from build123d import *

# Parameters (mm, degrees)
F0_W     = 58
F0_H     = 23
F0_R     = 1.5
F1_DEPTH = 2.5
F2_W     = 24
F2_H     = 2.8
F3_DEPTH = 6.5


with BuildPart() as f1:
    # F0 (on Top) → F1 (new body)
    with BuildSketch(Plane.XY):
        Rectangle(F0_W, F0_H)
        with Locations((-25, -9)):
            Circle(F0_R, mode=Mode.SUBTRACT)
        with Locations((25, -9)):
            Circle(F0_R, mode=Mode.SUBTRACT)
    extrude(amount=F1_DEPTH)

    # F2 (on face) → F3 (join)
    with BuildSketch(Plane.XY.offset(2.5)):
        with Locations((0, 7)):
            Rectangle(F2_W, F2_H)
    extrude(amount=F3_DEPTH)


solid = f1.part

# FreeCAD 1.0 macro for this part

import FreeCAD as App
import Part
import Sketcher

V = App.Vector
Q = App.Units.Quantity

doc = App.newDocument("Part")
params = doc.addObject("Spreadsheet::Sheet", "Params")
for row, (alias, value) in enumerate([
    ("sketch1_diameter", "3 mm"),
    ("sketch1_width", "58 mm"),
    ("sketch1_height", "23 mm"),
    ("pad1_length", "2.5 mm"),
    ("sketch2_width", "24 mm"),
    ("sketch2_height", "2.8 mm"),
    ("pad2_length", "6.5 mm"),
], start=1):
    params.set(f"A{row}", alias)
    params.set(f"B{row}", "=" + value)
    params.setAlias(f"B{row}", alias)

body = doc.addObject("PartDesign::Body", "Body")

# Sketch on XY plane
sketch1 = doc.addObject("Sketcher::SketchObject", "Sketch")
body.addObject(sketch1)
sketch1.AttachmentSupport = (doc.XY_Plane, [""])
sketch1.MapMode = "FlatFace"
sketch1.addGeometry([
    Part.LineSegment(V(-29, 11.5, 0), V(-29, -11.5, 0)),  # 0
    Part.LineSegment(V(-29, -11.5, 0), V(29, -11.5, 0)),  # 1
    Part.LineSegment(V(29, -11.5, 0), V(29, 11.5, 0)),  # 2
    Part.LineSegment(V(29, 11.5, 0), V(-29, 11.5, 0)),  # 3
    Part.Circle(V(-25, -9, 0), V(0, 0, 1), 1.5),  # 4
    Part.Circle(V(25, -9, 0), V(0, 0, 1), 1.5),  # 5
], False)
sketch1.addConstraint([
    Sketcher.Constraint("Coincident", 0, 2, 1, 1),
    Sketcher.Constraint("Coincident", 1, 2, 2, 1),
    Sketcher.Constraint("Coincident", 2, 2, 3, 1),
    Sketcher.Constraint("Coincident", 3, 2, 0, 1),
    Sketcher.Constraint("Vertical", 0),
    Sketcher.Constraint("Horizontal", 1),
    Sketcher.Constraint("Vertical", 2),
    Sketcher.Constraint("Horizontal", 3),
    Sketcher.Constraint("Equal", 4, 5),
    Sketcher.Constraint("Symmetric", 0, 2, 2, 2, -1, 1),
    Sketcher.Constraint("Symmetric", 4, 3, 5, 3, -2),
    Sketcher.Constraint("Diameter", 4, Q("3 mm")),
    Sketcher.Constraint("DistanceX", 1, 1, 1, 2, Q("58 mm")),
    Sketcher.Constraint("DistanceY", 0, 2, 0, 1, Q("23 mm")),
    Sketcher.Constraint("DistanceX", 4, 3, -1, 1, Q("25 mm")),
    Sketcher.Constraint("DistanceY", 4, 3, -1, 1, Q("9 mm")),
])
sketch1.setExpression("Constraints[11]", "Params.sketch1_diameter")
sketch1.setExpression("Constraints[12]", "Params.sketch1_width")
sketch1.setExpression("Constraints[13]", "Params.sketch1_height")
pad1 = doc.addObject("PartDesign::Pad", "Pad")
body.addObject(pad1)
pad1.Profile = sketch1
pad1.setExpression("Length", "Params.pad1_length")

# Sketch on XY plane
sketch2 = doc.addObject("Sketcher::SketchObject", "Sketch001")
body.addObject(sketch2)
sketch2.AttachmentSupport = (doc.XY_Plane, [""])
sketch2.MapMode = "FlatFace"
sketch2.AttachmentOffset = App.Placement(V(0, 0, 2.5), App.Rotation())
sketch2.addGeometry([
    Part.LineSegment(V(-12, 8.4, 0), V(-12, 5.6, 0)),
    Part.LineSegment(V(-12, 5.6, 0), V(12, 5.6, 0)),
    Part.LineSegment(V(12, 5.6, 0), V(12, 8.4, 0)),
    Part.LineSegment(V(12, 8.4, 0), V(-12, 8.4, 0)),
], False)
sketch2.addConstraint([
    Sketcher.Constraint("Coincident", 0, 2, 1, 1),
    Sketcher.Constraint("Coincident", 1, 2, 2, 1),
    Sketcher.Constraint("Coincident", 2, 2, 3, 1),
    Sketcher.Constraint("Coincident", 3, 2, 0, 1),
    Sketcher.Constraint("Vertical", 0),
    Sketcher.Constraint("Horizontal", 1),
    Sketcher.Constraint("Vertical", 2),
    Sketcher.Constraint("Horizontal", 3),
    Sketcher.Constraint("DistanceX", 1, 1, 1, 2, Q("24 mm")),
    Sketcher.Constraint("DistanceY", 0, 2, 0, 1, Q("2.8 mm")),
    Sketcher.Constraint("DistanceX", 0, 2, -1, 1, Q("12 mm")),
    Sketcher.Constraint("DistanceY", -1, 1, 0, 2, Q("5.6 mm")),
])
sketch2.setExpression("Constraints[8]", "Params.sketch2_width")
sketch2.setExpression("Constraints[9]", "Params.sketch2_height")
pad2 = doc.addObject("PartDesign::Pad", "Pad001")
body.addObject(pad2)
pad2.Profile = sketch2
pad2.setExpression("Length", "Params.pad2_length")

doc.recompute()
